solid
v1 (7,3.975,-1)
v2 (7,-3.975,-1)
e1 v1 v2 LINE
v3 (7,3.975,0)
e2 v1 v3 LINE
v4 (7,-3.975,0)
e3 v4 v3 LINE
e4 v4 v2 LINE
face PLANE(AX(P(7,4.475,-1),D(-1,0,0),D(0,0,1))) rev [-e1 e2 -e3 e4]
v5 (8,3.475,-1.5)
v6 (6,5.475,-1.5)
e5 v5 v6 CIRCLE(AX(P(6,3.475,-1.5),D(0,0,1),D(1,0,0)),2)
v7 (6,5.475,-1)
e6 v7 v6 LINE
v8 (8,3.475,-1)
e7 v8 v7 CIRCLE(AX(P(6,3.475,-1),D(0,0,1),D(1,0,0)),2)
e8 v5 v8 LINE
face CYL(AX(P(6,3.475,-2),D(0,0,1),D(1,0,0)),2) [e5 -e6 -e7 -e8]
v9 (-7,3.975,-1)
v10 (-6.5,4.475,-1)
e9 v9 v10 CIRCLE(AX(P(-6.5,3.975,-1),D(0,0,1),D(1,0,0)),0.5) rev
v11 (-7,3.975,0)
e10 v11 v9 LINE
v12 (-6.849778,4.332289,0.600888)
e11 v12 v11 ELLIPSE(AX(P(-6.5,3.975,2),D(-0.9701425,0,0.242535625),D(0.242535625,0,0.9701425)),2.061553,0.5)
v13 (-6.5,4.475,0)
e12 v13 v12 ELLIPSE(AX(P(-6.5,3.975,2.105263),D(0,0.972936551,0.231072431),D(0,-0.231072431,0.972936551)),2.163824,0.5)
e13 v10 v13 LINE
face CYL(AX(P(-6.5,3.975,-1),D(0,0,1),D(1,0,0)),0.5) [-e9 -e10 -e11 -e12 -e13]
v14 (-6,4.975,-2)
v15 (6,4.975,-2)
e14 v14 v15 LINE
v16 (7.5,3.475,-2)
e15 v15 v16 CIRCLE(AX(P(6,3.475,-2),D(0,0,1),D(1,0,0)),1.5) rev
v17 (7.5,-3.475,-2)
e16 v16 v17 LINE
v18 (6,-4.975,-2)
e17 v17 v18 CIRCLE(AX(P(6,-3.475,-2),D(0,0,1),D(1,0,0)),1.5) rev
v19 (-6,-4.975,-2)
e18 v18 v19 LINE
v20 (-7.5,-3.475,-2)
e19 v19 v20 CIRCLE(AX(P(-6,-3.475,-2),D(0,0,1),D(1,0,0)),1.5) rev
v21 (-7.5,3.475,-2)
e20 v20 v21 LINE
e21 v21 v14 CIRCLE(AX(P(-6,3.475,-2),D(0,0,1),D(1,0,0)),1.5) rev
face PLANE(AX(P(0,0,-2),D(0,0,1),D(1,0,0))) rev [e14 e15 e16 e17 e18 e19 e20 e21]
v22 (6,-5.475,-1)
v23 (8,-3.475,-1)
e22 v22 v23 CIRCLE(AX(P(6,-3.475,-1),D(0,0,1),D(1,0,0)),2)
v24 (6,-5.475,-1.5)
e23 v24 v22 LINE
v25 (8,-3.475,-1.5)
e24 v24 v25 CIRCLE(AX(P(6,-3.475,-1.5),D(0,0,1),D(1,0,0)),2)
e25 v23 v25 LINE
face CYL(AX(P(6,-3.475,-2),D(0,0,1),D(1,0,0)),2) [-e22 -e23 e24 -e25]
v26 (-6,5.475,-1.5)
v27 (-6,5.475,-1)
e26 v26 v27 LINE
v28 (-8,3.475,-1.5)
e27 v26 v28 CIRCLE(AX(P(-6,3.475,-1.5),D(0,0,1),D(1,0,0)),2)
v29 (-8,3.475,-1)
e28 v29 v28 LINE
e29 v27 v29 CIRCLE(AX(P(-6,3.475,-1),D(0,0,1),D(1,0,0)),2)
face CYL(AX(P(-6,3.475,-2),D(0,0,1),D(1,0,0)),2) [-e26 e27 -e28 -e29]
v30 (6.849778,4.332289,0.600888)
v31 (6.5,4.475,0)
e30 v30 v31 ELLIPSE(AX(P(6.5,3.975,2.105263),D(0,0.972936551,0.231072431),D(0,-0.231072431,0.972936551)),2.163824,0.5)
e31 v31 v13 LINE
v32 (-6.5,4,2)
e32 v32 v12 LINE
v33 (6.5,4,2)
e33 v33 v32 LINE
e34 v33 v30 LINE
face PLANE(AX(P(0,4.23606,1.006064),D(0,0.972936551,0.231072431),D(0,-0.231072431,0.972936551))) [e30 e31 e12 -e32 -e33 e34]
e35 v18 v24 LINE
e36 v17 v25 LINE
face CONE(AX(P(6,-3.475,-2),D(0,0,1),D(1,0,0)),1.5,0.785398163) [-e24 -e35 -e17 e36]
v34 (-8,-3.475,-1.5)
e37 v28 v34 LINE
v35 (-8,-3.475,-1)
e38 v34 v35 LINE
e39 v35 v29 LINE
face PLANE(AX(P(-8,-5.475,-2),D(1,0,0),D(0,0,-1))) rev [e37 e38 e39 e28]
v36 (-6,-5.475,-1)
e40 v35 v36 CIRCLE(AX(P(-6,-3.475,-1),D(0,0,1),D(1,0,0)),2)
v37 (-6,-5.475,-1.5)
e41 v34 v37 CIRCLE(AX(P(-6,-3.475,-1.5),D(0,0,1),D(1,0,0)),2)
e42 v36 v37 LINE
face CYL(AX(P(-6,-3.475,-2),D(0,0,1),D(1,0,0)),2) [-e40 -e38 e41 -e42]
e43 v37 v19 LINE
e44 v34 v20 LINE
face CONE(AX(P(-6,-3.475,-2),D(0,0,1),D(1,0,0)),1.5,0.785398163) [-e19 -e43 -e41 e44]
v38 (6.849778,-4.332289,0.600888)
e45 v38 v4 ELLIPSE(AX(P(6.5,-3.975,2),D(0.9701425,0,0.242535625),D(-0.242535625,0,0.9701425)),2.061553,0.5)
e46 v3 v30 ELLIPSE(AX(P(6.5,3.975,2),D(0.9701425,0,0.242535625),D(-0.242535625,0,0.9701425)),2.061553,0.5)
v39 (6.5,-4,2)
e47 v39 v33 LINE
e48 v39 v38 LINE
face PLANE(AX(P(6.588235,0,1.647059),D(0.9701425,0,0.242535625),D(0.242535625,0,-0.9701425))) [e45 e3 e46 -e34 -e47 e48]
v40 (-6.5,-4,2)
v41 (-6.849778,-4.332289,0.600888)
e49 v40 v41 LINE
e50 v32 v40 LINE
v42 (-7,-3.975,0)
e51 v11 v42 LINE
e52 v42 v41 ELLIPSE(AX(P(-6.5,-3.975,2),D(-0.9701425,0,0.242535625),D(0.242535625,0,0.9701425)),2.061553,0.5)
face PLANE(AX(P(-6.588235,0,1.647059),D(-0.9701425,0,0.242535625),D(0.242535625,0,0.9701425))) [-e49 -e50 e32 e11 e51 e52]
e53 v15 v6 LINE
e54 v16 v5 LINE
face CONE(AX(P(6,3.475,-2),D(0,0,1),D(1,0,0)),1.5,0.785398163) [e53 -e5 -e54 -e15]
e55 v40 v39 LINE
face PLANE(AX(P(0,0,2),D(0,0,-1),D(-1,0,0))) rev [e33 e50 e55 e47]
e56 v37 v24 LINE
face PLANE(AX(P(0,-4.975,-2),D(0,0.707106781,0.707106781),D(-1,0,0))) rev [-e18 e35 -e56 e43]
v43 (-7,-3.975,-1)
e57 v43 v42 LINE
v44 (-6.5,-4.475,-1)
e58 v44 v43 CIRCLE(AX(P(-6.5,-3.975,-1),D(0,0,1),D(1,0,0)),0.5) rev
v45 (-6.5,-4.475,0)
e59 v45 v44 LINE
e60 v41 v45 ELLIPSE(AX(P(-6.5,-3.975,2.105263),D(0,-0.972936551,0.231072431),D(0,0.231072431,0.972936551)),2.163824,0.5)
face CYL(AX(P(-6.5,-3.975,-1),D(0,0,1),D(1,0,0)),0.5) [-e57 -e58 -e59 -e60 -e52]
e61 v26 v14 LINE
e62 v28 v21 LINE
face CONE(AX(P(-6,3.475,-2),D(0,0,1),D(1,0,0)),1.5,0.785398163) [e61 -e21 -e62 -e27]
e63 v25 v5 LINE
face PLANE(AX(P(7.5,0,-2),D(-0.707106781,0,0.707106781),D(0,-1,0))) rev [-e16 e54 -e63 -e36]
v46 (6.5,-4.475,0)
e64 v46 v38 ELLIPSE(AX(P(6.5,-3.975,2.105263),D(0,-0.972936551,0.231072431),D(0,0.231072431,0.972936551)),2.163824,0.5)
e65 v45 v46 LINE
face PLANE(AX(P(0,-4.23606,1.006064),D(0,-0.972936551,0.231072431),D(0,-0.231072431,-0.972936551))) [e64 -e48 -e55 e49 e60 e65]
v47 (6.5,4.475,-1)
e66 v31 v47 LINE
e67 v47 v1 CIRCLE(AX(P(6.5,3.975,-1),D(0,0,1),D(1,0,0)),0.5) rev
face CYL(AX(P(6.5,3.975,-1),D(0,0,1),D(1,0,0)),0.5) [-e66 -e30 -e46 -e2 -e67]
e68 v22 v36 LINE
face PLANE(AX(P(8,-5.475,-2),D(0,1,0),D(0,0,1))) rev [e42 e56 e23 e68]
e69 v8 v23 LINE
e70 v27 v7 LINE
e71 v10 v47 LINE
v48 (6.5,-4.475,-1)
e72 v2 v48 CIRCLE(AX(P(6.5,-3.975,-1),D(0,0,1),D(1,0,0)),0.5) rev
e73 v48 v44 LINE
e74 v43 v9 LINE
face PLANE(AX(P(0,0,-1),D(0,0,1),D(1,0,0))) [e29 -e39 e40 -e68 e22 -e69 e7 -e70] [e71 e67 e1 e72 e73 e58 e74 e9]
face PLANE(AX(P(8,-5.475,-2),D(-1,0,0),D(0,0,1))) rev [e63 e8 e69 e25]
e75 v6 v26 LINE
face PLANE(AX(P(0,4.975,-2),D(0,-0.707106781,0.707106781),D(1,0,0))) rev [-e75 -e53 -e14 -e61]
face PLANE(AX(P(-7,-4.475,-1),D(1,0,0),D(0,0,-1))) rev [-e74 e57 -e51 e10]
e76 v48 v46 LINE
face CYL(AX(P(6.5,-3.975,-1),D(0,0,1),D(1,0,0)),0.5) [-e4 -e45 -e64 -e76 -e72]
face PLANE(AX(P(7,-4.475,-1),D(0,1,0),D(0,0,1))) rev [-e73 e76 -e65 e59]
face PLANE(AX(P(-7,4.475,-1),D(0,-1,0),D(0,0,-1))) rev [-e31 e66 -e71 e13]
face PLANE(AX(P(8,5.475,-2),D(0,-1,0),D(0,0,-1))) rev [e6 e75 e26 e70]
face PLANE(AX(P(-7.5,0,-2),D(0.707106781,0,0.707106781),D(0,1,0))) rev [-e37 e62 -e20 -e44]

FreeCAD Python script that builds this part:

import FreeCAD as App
import Part
import Sketcher
Q = App.Units.Quantity


def edges_at(feature, points):
    """Names of the edges that pass closest to the given points."""
    edges = feature.Shape.Edges
    near = lambda p: min(range(len(edges)), key=lambda i: edges[i].distToShape(Part.Vertex(*p))[0])
    return sorted({f"Edge{near(p) + 1}" for p in points})

doc = App.newDocument("Part")
body = doc.addObject("PartDesign::Body", "Body")

# Sketch on XY plane
sketch1 = doc.addObject("Sketcher::SketchObject", "Sketch")
body.addObject(sketch1)
sketch1.AttachmentSupport = (doc.XY_Plane, [""])
sketch1.MapMode = "FlatFace"
sketch1.AttachmentOffset = App.Placement(App.Vector(0, 0, 2), App.Rotation())
sketch1.addGeometry(Part.LineSegment(App.Vector(-6, 4, 0), App.Vector(-6, -4, 0)), False)
sketch1.addGeometry(Part.LineSegment(App.Vector(-6, -4, 0), App.Vector(6, -4, 0)), False)
sketch1.addGeometry(Part.LineSegment(App.Vector(6, -4, 0), App.Vector(6, 4, 0)), False)
sketch1.addGeometry(Part.LineSegment(App.Vector(6, 4, 0), App.Vector(-6, 4, 0)), False)
sketch1.addConstraint(Sketcher.Constraint("Coincident", 0, 2, 1, 1))
sketch1.addConstraint(Sketcher.Constraint("Coincident", 1, 2, 2, 1))
sketch1.addConstraint(Sketcher.Constraint("Coincident", 2, 2, 3, 1))
sketch1.addConstraint(Sketcher.Constraint("Coincident", 3, 2, 0, 1))
sketch1.addConstraint(Sketcher.Constraint("Vertical", 0))
sketch1.addConstraint(Sketcher.Constraint("Horizontal", 1))
sketch1.addConstraint(Sketcher.Constraint("Vertical", 2))
sketch1.addConstraint(Sketcher.Constraint("Horizontal", 3))
sketch1.addConstraint(Sketcher.Constraint("Symmetric", 0, 2, 2, 2, -1, 1))
sketch1.addConstraint(Sketcher.Constraint("DistanceX", 1, 1, 1, 2, Q("13 mm")))
sketch1.addConstraint(Sketcher.Constraint("DistanceY", 0, 2, 0, 1, Q("8 mm")))

# Sketch on XY plane
sketch2 = doc.addObject("Sketcher::SketchObject", "Sketch001")
body.addObject(sketch2)
sketch2.AttachmentSupport = (doc.XY_Plane, [""])
sketch2.MapMode = "FlatFace"
sketch2.addGeometry(Part.LineSegment(App.Vector(-7, 4, 0), App.Vector(-7, -4, 0)), False)
sketch2.addGeometry(Part.LineSegment(App.Vector(-7, -4, 0), App.Vector(7, -4, 0)), False)
sketch2.addGeometry(Part.LineSegment(App.Vector(7, -4, 0), App.Vector(7, 4, 0)), False)
sketch2.addGeometry(Part.LineSegment(App.Vector(7, 4, 0), App.Vector(-7, 4, 0)), False)
sketch2.addConstraint(Sketcher.Constraint("Coincident", 0, 2, 1, 1))
sketch2.addConstraint(Sketcher.Constraint("Coincident", 1, 2, 2, 1))
sketch2.addConstraint(Sketcher.Constraint("Coincident", 2, 2, 3, 1))
sketch2.addConstraint(Sketcher.Constraint("Coincident", 3, 2, 0, 1))
sketch2.addConstraint(Sketcher.Constraint("Vertical", 0))
sketch2.addConstraint(Sketcher.Constraint("Horizontal", 1))
sketch2.addConstraint(Sketcher.Constraint("Vertical", 2))
sketch2.addConstraint(Sketcher.Constraint("Horizontal", 3))
sketch2.addConstraint(Sketcher.Constraint("Symmetric", 0, 2, 2, 2, -1, 1))
sketch2.addConstraint(Sketcher.Constraint("DistanceX", 1, 1, 1, 2, Q("14 mm")))
sketch2.addConstraint(Sketcher.Constraint("DistanceY", 0, 2, 0, 1, Q("8.95 mm")))

additiveloft = doc.addObject("PartDesign::AdditiveLoft", "AdditiveLoft")
body.addObject(additiveloft)
additiveloft.Profile = sketch1
additiveloft.Sections = [sketch2]

# Sketch on XY plane
sketch3 = doc.addObject("Sketcher::SketchObject", "Sketch002")
body.addObject(sketch3)
sketch3.AttachmentSupport = (doc.XY_Plane, [""])
sketch3.MapMode = "FlatFace"
sketch3.addGeometry(Part.LineSegment(App.Vector(7, 4, 0), App.Vector(7, -4, 0)), False)
sketch3.addGeometry(Part.LineSegment(App.Vector(7, -4, 0), App.Vector(-7, -4, 0)), False)
sketch3.addGeometry(Part.LineSegment(App.Vector(-7, -4, 0), App.Vector(-7, 4, 0)), False)
sketch3.addGeometry(Part.LineSegment(App.Vector(-7, 4, 0), App.Vector(7, 4, 0)), False)
sketch3.addConstraint(Sketcher.Constraint("Coincident", 0, 2, 1, 1))
sketch3.addConstraint(Sketcher.Constraint("Coincident", 1, 2, 2, 1))
sketch3.addConstraint(Sketcher.Constraint("Coincident", 2, 2, 3, 1))
sketch3.addConstraint(Sketcher.Constraint("Coincident", 3, 2, 0, 1))
sketch3.addConstraint(Sketcher.Constraint("Vertical", 0))
sketch3.addConstraint(Sketcher.Constraint("Horizontal", 1))
sketch3.addConstraint(Sketcher.Constraint("Vertical", 2))
sketch3.addConstraint(Sketcher.Constraint("Horizontal", 3))
sketch3.addConstraint(Sketcher.Constraint("Symmetric", 0, 2, 2, 2, -1, 1))
sketch3.addConstraint(Sketcher.Constraint("DistanceX", 1, 2, 1, 1, Q("14 mm")))
sketch3.addConstraint(Sketcher.Constraint("DistanceY", 0, 2, 0, 1, Q("8.95 mm")))
pad1 = doc.addObject("PartDesign::Pad", "Pad")
body.addObject(pad1)
pad1.Profile = sketch3
pad1.Length = 1
pad1.Reversed = True

# Sketch on XY plane
sketch4 = doc.addObject("Sketcher::SketchObject", "Sketch003")
body.addObject(sketch4)
sketch4.AttachmentSupport = (doc.XY_Plane, [""])
sketch4.MapMode = "FlatFace"
sketch4.AttachmentOffset = App.Placement(App.Vector(0, 0, -1), App.Rotation())
sketch4.addGeometry(Part.LineSegment(App.Vector(8, 5, 0), App.Vector(8, -5, 0)), False)
sketch4.addGeometry(Part.LineSegment(App.Vector(8, -5, 0), App.Vector(-8, -5, 0)), False)
sketch4.addGeometry(Part.LineSegment(App.Vector(-8, -5, 0), App.Vector(-8, 5, 0)), False)
sketch4.addGeometry(Part.LineSegment(App.Vector(-8, 5, 0), App.Vector(8, 5, 0)), False)
sketch4.addConstraint(Sketcher.Constraint("Coincident", 0, 2, 1, 1))
sketch4.addConstraint(Sketcher.Constraint("Coincident", 1, 2, 2, 1))
sketch4.addConstraint(Sketcher.Constraint("Coincident", 2, 2, 3, 1))
sketch4.addConstraint(Sketcher.Constraint("Coincident", 3, 2, 0, 1))
sketch4.addConstraint(Sketcher.Constraint("Vertical", 0))
sketch4.addConstraint(Sketcher.Constraint("Horizontal", 1))
sketch4.addConstraint(Sketcher.Constraint("Vertical", 2))
sketch4.addConstraint(Sketcher.Constraint("Horizontal", 3))
sketch4.addConstraint(Sketcher.Constraint("Symmetric", 0, 2, 2, 2, -1, 1))
sketch4.addConstraint(Sketcher.Constraint("DistanceX", 1, 2, 1, 1, Q("16 mm")))
sketch4.addConstraint(Sketcher.Constraint("DistanceY", 0, 2, 0, 1, Q("10.95 mm")))
pad2 = doc.addObject("PartDesign::Pad", "Pad001")
body.addObject(pad2)
pad2.Profile = sketch4
pad2.Length = 1
pad2.Reversed = True
doc.recompute()

fillet = doc.addObject("PartDesign::Fillet", "Fillet")
body.addObject(fillet)
fillet.Base = (pad2, edges_at(pad2, [
    (-8, -5.475, -1.5),
    (-8, 5.475, -1.5),
    (8, 5.475, -1.5),
    (8, -5.475, -1.5),
]))
fillet.Radius = 2
doc.recompute()

chamfer = doc.addObject("PartDesign::Chamfer", "Chamfer")
body.addObject(chamfer)
chamfer.Base = (fillet, edges_at(fillet, [
    (-8, 0, -2),
    (0, -5.475, -2),
    (0, 5.475, -2),
    (8, 0, -2),
    (7.414, 4.889, -2),
    (7.414, -4.889, -2),
    (-7.414, 4.889, -2),
    (-7.414, -4.889, -2),
]))
chamfer.Size = 0.5
doc.recompute()

fillet2 = doc.addObject("PartDesign::Fillet", "Fillet001")
body.addObject(fillet2)
fillet2.Base = (chamfer, edges_at(chamfer, [
    (-7, -4.475, -0.5),
    (-7, 4.475, -0.5),
    (7, -4.475, -0.5),
    (7, 4.475, -0.5),
]))
fillet2.Radius = 0.5

doc.recompute()
